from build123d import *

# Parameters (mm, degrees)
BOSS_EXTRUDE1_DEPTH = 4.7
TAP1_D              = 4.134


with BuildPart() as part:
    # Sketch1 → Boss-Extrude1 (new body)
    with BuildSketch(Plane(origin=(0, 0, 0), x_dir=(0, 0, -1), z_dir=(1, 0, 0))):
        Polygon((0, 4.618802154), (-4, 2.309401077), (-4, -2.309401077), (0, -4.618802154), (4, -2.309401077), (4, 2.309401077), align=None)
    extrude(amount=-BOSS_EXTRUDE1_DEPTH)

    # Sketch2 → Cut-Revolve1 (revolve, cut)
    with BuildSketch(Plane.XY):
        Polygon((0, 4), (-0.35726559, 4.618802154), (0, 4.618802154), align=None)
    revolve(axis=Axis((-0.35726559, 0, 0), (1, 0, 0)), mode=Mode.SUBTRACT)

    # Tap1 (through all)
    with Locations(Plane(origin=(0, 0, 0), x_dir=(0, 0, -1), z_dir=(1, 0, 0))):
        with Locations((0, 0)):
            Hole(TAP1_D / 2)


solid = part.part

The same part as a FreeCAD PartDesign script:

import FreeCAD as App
import Part
import Sketcher

V = App.Vector
Q = App.Units.Quantity


def add_polygon(sketch, points):
    """Adds a closed chain of lines whose ends are joined by coincident constraints."""
    first, n = sketch.GeometryCount, len(points)
    for a, b in zip(points, points[1:] + points[:1]):
        sketch.addGeometry(Part.LineSegment(App.Vector(*a, 0), App.Vector(*b, 0)), False)
    for i in range(n):
        sketch.addConstraint(Sketcher.Constraint("Coincident", first + i, 2, first + (i + 1) % n, 1))

doc = App.newDocument("Part")
params = doc.addObject("Spreadsheet::Sheet", "Params")
for row, (alias, value) in enumerate([
    ("pad1_length", "4.7 mm"),
    ("groove_angle", "360 deg"),
    ("hole_diameter", "4.134 mm"),
], start=1):
    params.set(f"A{row}", alias)
    params.set(f"B{row}", "=" + value)
    params.setAlias(f"B{row}", alias)

body = doc.addObject("PartDesign::Body", "Body")

# Sketch on YZ plane
sketch1 = body.newObject("Sketcher::SketchObject", "Sketch")
sketch1.AttachmentSupport = (doc.getObject("YZ_Plane"), [""])
sketch1.MapMode = "FlatFace"
add_polygon(sketch1, [(4.6, 0), (2.3, 4), (-2.3, 4), (-4.6, 0), (-2.3, -4), (2.3, -4)])  # lines 0-5
sketch1.addConstraint([
    Sketcher.Constraint("Horizontal", 1),
    Sketcher.Constraint("Horizontal", 4),
    Sketcher.Constraint("Symmetric", 0, 2, 3, 2, -1, 1),
    Sketcher.Constraint("Symmetric", 2, 2, 5, 2, -1, 1),
    Sketcher.Constraint("PointOnObject", 2, 2, -1),
    Sketcher.Constraint("Parallel", 2, 5),
    Sketcher.Constraint("Vertical", 1, 2, 3, 2),
    Sketcher.Constraint("Angle", 0, Q("120 deg")),
    Sketcher.Constraint("DistanceY", -1, 1, 0, 2, Q("4 mm")),
    Sketcher.Constraint("DistanceX", -1, 1, 0, 2, Q("2.309401 mm")),
])
pad1 = body.newObject("PartDesign::Pad", "Pad")
pad1.Profile = sketch1
pad1.setExpression("Length", "Params.pad1_length")
pad1.Reversed = True

# Sketch on XY plane
sketch2 = body.newObject("Sketcher::SketchObject", "Sketch001")
sketch2.AttachmentSupport = (doc.getObject("XY_Plane"), [""])
sketch2.MapMode = "FlatFace"
add_polygon(sketch2, [(-0.36, 4.62), (0, 4), (0, 4.62)])  # lines 0-2
sketch2.addConstraint([
    Sketcher.Constraint("Vertical", 1),
    Sketcher.Constraint("Horizontal", 2),
    Sketcher.Constraint("PointOnObject", 0, 2, -2),
    Sketcher.Constraint("Angle", 0, Q("-60 deg")),
    Sketcher.Constraint("DistanceY", -1, 1, 0, 2, Q("4 mm")),
    Sketcher.Constraint("Distance", 0, Q("0.714531 mm")),
])
groove = body.newObject("PartDesign::Groove", "Groove")
groove.Profile = sketch2
groove.ReferenceAxis = (sketch2, ["H_Axis"])
groove.setExpression("Angle", "Params.groove_angle")

# Sketch on YZ plane
sketch3 = body.newObject("Sketcher::SketchObject", "Sketch002")
sketch3.AttachmentSupport = (doc.getObject("YZ_Plane"), [""])
sketch3.MapMode = "FlatFace"
sketch3.addGeometry(Part.Circle(V(0, 0, 0), V(0, 0, 1), 2.1), False)
sketch3.addConstraint([
    Sketcher.Constraint("Coincident", 0, 3, -1, 1),
    Sketcher.Constraint("Diameter", 0, Q("4.134 mm")),
])
doc.recompute()
hole = body.newObject("PartDesign::Hole", "Hole")
hole.Profile = sketch3
hole.ThreadType = "None"
hole.setExpression("Diameter", "Params.hole_diameter")
hole.DepthType = "ThroughAll"

doc.recompute()
